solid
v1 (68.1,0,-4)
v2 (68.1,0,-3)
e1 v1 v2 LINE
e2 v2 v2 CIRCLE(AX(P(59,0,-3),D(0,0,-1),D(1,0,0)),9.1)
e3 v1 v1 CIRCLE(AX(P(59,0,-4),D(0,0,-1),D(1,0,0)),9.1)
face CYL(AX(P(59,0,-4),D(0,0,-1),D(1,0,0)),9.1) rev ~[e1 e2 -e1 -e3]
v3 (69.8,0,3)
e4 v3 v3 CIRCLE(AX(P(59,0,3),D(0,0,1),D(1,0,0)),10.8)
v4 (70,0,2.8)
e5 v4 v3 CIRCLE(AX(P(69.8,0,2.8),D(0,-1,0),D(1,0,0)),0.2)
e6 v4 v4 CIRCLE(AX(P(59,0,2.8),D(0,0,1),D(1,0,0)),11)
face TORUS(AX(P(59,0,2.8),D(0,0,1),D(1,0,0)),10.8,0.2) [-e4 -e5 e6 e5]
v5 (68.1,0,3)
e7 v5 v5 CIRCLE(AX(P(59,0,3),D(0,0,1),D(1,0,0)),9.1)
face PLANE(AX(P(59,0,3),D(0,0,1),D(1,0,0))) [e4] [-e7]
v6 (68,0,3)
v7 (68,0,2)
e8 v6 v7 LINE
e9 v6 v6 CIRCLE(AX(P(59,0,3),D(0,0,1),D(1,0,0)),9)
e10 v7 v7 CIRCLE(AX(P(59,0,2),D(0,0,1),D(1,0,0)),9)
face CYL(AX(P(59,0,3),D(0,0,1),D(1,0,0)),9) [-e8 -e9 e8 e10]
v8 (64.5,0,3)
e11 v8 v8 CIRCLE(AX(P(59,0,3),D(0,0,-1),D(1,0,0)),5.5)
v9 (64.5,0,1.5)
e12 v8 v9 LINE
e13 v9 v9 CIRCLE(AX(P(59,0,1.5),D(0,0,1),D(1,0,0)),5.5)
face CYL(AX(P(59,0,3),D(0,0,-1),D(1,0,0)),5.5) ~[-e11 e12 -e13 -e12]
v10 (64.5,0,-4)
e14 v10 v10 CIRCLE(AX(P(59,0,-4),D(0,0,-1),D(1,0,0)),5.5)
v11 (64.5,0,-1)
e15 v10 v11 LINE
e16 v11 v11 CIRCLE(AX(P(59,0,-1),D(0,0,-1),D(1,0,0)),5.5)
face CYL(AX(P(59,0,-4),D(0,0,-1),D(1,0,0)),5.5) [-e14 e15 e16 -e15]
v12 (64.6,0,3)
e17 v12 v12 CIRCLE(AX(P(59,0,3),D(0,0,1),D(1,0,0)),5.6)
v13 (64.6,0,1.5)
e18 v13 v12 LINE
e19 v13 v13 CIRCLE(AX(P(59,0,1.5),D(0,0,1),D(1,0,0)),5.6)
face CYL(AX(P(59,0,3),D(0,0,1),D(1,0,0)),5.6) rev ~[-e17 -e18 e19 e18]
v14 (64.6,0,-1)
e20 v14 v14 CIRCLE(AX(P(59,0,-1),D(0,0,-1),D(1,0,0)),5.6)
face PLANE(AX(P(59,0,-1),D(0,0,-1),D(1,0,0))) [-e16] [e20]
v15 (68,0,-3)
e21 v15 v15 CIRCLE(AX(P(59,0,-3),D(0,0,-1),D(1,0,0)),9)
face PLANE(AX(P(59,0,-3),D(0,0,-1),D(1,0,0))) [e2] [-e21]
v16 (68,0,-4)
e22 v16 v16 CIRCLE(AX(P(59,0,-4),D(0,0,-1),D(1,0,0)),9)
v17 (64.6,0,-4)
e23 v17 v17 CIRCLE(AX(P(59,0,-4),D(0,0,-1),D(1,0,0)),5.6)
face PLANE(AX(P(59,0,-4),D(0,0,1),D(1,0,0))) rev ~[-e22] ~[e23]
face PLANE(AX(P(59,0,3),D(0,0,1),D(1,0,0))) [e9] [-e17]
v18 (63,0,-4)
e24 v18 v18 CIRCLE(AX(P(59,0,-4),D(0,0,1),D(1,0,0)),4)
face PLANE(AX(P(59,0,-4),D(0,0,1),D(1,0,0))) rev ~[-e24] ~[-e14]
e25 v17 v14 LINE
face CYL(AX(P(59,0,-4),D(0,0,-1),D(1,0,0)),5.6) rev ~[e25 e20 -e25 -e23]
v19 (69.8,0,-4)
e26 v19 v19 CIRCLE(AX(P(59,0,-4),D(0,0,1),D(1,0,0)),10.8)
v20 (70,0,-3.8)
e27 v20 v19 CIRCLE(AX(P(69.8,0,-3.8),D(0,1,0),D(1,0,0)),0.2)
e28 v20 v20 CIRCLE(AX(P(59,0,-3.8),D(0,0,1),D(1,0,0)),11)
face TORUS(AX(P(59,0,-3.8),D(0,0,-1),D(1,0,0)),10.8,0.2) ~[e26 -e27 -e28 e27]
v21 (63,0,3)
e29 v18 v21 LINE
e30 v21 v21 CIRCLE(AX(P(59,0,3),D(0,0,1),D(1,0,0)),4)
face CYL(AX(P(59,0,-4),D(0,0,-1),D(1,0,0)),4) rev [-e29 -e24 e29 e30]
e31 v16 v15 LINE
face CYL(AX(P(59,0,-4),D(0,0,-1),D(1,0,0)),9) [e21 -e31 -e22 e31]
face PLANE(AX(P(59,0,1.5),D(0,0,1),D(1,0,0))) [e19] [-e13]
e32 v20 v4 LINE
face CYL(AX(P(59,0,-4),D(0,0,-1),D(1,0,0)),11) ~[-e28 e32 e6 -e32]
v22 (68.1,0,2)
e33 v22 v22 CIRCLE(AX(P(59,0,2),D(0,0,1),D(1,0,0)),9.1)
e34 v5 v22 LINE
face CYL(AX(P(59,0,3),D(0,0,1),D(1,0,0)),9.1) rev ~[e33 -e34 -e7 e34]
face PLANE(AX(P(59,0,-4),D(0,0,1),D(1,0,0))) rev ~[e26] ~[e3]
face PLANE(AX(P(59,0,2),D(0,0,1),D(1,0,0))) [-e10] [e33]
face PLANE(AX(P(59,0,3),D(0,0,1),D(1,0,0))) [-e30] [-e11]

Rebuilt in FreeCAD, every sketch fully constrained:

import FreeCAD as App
import Part
import Sketcher
Q = App.Units.Quantity


def edges_at(feature, points):
    """Names of the edges that pass closest to the given points."""
    edges = feature.Shape.Edges
    near = lambda p: min(range(len(edges)), key=lambda i: edges[i].distToShape(Part.Vertex(*p))[0])
    return sorted({f"Edge{near(p) + 1}" for p in points})

doc = App.newDocument("Part")
params = doc.addObject("Spreadsheet::Sheet", "Params")
for row, (alias, value) in enumerate([
    ("sketch1_diameter", "22 mm"),
    ("sketch1_diameter2", "8 mm"),
    ("pad1_length", "7 mm"),
    ("sketch2_diameter", "11 mm"),
    ("sketch2_diameter2", "11.2 mm"),
    ("pocket1_length", "3 mm"),
    ("sketch3_diameter", "11 mm"),
    ("sketch3_diameter2", "11.2 mm"),
    ("pocket2_length", "3 mm"),
    ("sketch4_diameter", "18 mm"),
    ("sketch4_diameter2", "18.2 mm"),
    ("pocket3_length", "1 mm"),
    ("sketch5_diameter", "18 mm"),
    ("sketch5_diameter2", "18.2 mm"),
    ("pocket4_length", "1 mm"),
    ("fillet_radius", "0.2 mm"),
], start=1):
    params.set(f"A{row}", alias)
    params.set(f"B{row}", "=" + value)
    params.setAlias(f"B{row}", alias)

body = doc.addObject("PartDesign::Body", "Body")

# Sketch on XY plane
sketch1 = body.newObject("Sketcher::SketchObject", "Sketch")
sketch1.AttachmentSupport = (doc.getObject("XY_Plane"), [""])
sketch1.MapMode = "FlatFace"
sketch1.addGeometry([
    Part.Circle(App.Vector(0, 0, 0), App.Vector(0, 0, 1), 11),
    Part.Circle(App.Vector(0, 0, 0), App.Vector(0, 0, 1), 4),
], False)
sketch1.addConstraint([
    Sketcher.Constraint("Coincident", 0, 3, -1, 1),
    Sketcher.Constraint("Coincident", 1, 3, -1, 1),
    Sketcher.Constraint("Diameter", 0, Q("22 mm")),
    Sketcher.Constraint("Diameter", 1, Q("8 mm")),
])
sketch1.setExpression("Constraints[2]", "Params.sketch1_diameter")
sketch1.setExpression("Constraints[3]", "Params.sketch1_diameter2")
pad1 = body.newObject("PartDesign::Pad", "Pad")
pad1.Profile = sketch1
pad1.setExpression("Length", "Params.pad1_length")

# Sketch on XY plane
sketch2 = body.newObject("Sketcher::SketchObject", "Sketch001")
sketch2.AttachmentSupport = (doc.getObject("XY_Plane"), [""])
sketch2.MapMode = "FlatFace"
sketch2.AttachmentOffset = App.Placement(App.Vector(0, 0, 7), App.Rotation())
sketch2.addGeometry([
    Part.Circle(App.Vector(0, 0, 0), App.Vector(0, 0, 1), 5.6),
    Part.Circle(App.Vector(0, 0, 0), App.Vector(0, 0, 1), 5.5),
], False)
sketch2.addConstraint([
    Sketcher.Constraint("Coincident", 0, 3, -1, 1),
    Sketcher.Constraint("Coincident", 1, 3, -1, 1),
    Sketcher.Constraint("Diameter", 1, Q("11 mm")),
    Sketcher.Constraint("Diameter", 0, Q("11.2 mm")),
])
sketch2.setExpression("Constraints[2]", "Params.sketch2_diameter")
sketch2.setExpression("Constraints[3]", "Params.sketch2_diameter2")
pocket1 = body.newObject("PartDesign::Pocket", "Pocket")
pocket1.Profile = sketch2
pocket1.setExpression("Length", "Params.pocket1_length")
pocket1.Midplane = True

# Sketch on XY plane
sketch3 = body.newObject("Sketcher::SketchObject", "Sketch002")
sketch3.AttachmentSupport = (doc.getObject("XY_Plane"), [""])
sketch3.MapMode = "FlatFace"
sketch3.addGeometry([
    Part.Circle(App.Vector(0, 0, 0), App.Vector(0, 0, 1), 5.6),
    Part.Circle(App.Vector(0, 0, 0), App.Vector(0, 0, 1), 5.5),
], False)
sketch3.addConstraint([
    Sketcher.Constraint("Coincident", 0, 3, -1, 1),
    Sketcher.Constraint("Coincident", 1, 3, -1, 1),
    Sketcher.Constraint("Diameter", 1, Q("11 mm")),
    Sketcher.Constraint("Diameter", 0, Q("11.2 mm")),
])
sketch3.setExpression("Constraints[2]", "Params.sketch3_diameter")
sketch3.setExpression("Constraints[3]", "Params.sketch3_diameter2")
pocket2 = body.newObject("PartDesign::Pocket", "Pocket001")
pocket2.Profile = sketch3
pocket2.setExpression("Length", "Params.pocket2_length")
pocket2.Reversed = True

# Sketch on XY plane
sketch4 = body.newObject("Sketcher::SketchObject", "Sketch003")
sketch4.AttachmentSupport = (doc.getObject("XY_Plane"), [""])
sketch4.MapMode = "FlatFace"
sketch4.AttachmentOffset = App.Placement(App.Vector(0, 0, 7), App.Rotation())
sketch4.addGeometry([
    Part.Circle(App.Vector(0, 0, 0), App.Vector(0, 0, 1), 9.1),
    Part.Circle(App.Vector(0, 0, 0), App.Vector(0, 0, 1), 9),
], False)
sketch4.addConstraint([
    Sketcher.Constraint("Coincident", 0, 3, -1, 1),
    Sketcher.Constraint("Coincident", 1, 3, -1, 1),
    Sketcher.Constraint("Diameter", 1, Q("18 mm")),
    Sketcher.Constraint("Diameter", 0, Q("18.2 mm")),
])
sketch4.setExpression("Constraints[2]", "Params.sketch4_diameter")
sketch4.setExpression("Constraints[3]", "Params.sketch4_diameter2")
pocket3 = body.newObject("PartDesign::Pocket", "Pocket002")
pocket3.Profile = sketch4
pocket3.setExpression("Length", "Params.pocket3_length")

# Sketch on XY plane
sketch5 = body.newObject("Sketcher::SketchObject", "Sketch004")
sketch5.AttachmentSupport = (doc.getObject("XY_Plane"), [""])
sketch5.MapMode = "FlatFace"
sketch5.addGeometry([
    Part.Circle(App.Vector(0, 0, 0), App.Vector(0, 0, 1), 9.1),
    Part.Circle(App.Vector(0, 0, 0), App.Vector(0, 0, 1), 9),
], False)
sketch5.addConstraint([
    Sketcher.Constraint("Coincident", 0, 3, -1, 1),
    Sketcher.Constraint("Coincident", 1, 3, -1, 1),
    Sketcher.Constraint("Diameter", 1, Q("18 mm")),
    Sketcher.Constraint("Diameter", 0, Q("18.2 mm")),
])
sketch5.setExpression("Constraints[2]", "Params.sketch5_diameter")
sketch5.setExpression("Constraints[3]", "Params.sketch5_diameter2")
pocket4 = body.newObject("PartDesign::Pocket", "Pocket003")
pocket4.Profile = sketch5
pocket4.setExpression("Length", "Params.pocket4_length")
pocket4.Reversed = True
doc.recompute()

fillet = body.newObject("PartDesign::Fillet", "Fillet")
fillet.Base = (pocket4, edges_at(pocket4, [(-11, 0, 0), (-11, 0, 7)]))
fillet.setExpression("Radius", "Params.fillet_radius")
body2 = doc.addObject("PartDesign::Body", "Body001")
doc.recompute()

body.Placement = App.Placement(App.Vector(59, 0, -4), App.Rotation(App.Vector(0, 0, 1), 0))
boolean = body2.newObject("PartDesign::Boolean", "Boolean")
boolean.Type = "Fuse"
boolean.addObjects([body])

doc.recompute()
